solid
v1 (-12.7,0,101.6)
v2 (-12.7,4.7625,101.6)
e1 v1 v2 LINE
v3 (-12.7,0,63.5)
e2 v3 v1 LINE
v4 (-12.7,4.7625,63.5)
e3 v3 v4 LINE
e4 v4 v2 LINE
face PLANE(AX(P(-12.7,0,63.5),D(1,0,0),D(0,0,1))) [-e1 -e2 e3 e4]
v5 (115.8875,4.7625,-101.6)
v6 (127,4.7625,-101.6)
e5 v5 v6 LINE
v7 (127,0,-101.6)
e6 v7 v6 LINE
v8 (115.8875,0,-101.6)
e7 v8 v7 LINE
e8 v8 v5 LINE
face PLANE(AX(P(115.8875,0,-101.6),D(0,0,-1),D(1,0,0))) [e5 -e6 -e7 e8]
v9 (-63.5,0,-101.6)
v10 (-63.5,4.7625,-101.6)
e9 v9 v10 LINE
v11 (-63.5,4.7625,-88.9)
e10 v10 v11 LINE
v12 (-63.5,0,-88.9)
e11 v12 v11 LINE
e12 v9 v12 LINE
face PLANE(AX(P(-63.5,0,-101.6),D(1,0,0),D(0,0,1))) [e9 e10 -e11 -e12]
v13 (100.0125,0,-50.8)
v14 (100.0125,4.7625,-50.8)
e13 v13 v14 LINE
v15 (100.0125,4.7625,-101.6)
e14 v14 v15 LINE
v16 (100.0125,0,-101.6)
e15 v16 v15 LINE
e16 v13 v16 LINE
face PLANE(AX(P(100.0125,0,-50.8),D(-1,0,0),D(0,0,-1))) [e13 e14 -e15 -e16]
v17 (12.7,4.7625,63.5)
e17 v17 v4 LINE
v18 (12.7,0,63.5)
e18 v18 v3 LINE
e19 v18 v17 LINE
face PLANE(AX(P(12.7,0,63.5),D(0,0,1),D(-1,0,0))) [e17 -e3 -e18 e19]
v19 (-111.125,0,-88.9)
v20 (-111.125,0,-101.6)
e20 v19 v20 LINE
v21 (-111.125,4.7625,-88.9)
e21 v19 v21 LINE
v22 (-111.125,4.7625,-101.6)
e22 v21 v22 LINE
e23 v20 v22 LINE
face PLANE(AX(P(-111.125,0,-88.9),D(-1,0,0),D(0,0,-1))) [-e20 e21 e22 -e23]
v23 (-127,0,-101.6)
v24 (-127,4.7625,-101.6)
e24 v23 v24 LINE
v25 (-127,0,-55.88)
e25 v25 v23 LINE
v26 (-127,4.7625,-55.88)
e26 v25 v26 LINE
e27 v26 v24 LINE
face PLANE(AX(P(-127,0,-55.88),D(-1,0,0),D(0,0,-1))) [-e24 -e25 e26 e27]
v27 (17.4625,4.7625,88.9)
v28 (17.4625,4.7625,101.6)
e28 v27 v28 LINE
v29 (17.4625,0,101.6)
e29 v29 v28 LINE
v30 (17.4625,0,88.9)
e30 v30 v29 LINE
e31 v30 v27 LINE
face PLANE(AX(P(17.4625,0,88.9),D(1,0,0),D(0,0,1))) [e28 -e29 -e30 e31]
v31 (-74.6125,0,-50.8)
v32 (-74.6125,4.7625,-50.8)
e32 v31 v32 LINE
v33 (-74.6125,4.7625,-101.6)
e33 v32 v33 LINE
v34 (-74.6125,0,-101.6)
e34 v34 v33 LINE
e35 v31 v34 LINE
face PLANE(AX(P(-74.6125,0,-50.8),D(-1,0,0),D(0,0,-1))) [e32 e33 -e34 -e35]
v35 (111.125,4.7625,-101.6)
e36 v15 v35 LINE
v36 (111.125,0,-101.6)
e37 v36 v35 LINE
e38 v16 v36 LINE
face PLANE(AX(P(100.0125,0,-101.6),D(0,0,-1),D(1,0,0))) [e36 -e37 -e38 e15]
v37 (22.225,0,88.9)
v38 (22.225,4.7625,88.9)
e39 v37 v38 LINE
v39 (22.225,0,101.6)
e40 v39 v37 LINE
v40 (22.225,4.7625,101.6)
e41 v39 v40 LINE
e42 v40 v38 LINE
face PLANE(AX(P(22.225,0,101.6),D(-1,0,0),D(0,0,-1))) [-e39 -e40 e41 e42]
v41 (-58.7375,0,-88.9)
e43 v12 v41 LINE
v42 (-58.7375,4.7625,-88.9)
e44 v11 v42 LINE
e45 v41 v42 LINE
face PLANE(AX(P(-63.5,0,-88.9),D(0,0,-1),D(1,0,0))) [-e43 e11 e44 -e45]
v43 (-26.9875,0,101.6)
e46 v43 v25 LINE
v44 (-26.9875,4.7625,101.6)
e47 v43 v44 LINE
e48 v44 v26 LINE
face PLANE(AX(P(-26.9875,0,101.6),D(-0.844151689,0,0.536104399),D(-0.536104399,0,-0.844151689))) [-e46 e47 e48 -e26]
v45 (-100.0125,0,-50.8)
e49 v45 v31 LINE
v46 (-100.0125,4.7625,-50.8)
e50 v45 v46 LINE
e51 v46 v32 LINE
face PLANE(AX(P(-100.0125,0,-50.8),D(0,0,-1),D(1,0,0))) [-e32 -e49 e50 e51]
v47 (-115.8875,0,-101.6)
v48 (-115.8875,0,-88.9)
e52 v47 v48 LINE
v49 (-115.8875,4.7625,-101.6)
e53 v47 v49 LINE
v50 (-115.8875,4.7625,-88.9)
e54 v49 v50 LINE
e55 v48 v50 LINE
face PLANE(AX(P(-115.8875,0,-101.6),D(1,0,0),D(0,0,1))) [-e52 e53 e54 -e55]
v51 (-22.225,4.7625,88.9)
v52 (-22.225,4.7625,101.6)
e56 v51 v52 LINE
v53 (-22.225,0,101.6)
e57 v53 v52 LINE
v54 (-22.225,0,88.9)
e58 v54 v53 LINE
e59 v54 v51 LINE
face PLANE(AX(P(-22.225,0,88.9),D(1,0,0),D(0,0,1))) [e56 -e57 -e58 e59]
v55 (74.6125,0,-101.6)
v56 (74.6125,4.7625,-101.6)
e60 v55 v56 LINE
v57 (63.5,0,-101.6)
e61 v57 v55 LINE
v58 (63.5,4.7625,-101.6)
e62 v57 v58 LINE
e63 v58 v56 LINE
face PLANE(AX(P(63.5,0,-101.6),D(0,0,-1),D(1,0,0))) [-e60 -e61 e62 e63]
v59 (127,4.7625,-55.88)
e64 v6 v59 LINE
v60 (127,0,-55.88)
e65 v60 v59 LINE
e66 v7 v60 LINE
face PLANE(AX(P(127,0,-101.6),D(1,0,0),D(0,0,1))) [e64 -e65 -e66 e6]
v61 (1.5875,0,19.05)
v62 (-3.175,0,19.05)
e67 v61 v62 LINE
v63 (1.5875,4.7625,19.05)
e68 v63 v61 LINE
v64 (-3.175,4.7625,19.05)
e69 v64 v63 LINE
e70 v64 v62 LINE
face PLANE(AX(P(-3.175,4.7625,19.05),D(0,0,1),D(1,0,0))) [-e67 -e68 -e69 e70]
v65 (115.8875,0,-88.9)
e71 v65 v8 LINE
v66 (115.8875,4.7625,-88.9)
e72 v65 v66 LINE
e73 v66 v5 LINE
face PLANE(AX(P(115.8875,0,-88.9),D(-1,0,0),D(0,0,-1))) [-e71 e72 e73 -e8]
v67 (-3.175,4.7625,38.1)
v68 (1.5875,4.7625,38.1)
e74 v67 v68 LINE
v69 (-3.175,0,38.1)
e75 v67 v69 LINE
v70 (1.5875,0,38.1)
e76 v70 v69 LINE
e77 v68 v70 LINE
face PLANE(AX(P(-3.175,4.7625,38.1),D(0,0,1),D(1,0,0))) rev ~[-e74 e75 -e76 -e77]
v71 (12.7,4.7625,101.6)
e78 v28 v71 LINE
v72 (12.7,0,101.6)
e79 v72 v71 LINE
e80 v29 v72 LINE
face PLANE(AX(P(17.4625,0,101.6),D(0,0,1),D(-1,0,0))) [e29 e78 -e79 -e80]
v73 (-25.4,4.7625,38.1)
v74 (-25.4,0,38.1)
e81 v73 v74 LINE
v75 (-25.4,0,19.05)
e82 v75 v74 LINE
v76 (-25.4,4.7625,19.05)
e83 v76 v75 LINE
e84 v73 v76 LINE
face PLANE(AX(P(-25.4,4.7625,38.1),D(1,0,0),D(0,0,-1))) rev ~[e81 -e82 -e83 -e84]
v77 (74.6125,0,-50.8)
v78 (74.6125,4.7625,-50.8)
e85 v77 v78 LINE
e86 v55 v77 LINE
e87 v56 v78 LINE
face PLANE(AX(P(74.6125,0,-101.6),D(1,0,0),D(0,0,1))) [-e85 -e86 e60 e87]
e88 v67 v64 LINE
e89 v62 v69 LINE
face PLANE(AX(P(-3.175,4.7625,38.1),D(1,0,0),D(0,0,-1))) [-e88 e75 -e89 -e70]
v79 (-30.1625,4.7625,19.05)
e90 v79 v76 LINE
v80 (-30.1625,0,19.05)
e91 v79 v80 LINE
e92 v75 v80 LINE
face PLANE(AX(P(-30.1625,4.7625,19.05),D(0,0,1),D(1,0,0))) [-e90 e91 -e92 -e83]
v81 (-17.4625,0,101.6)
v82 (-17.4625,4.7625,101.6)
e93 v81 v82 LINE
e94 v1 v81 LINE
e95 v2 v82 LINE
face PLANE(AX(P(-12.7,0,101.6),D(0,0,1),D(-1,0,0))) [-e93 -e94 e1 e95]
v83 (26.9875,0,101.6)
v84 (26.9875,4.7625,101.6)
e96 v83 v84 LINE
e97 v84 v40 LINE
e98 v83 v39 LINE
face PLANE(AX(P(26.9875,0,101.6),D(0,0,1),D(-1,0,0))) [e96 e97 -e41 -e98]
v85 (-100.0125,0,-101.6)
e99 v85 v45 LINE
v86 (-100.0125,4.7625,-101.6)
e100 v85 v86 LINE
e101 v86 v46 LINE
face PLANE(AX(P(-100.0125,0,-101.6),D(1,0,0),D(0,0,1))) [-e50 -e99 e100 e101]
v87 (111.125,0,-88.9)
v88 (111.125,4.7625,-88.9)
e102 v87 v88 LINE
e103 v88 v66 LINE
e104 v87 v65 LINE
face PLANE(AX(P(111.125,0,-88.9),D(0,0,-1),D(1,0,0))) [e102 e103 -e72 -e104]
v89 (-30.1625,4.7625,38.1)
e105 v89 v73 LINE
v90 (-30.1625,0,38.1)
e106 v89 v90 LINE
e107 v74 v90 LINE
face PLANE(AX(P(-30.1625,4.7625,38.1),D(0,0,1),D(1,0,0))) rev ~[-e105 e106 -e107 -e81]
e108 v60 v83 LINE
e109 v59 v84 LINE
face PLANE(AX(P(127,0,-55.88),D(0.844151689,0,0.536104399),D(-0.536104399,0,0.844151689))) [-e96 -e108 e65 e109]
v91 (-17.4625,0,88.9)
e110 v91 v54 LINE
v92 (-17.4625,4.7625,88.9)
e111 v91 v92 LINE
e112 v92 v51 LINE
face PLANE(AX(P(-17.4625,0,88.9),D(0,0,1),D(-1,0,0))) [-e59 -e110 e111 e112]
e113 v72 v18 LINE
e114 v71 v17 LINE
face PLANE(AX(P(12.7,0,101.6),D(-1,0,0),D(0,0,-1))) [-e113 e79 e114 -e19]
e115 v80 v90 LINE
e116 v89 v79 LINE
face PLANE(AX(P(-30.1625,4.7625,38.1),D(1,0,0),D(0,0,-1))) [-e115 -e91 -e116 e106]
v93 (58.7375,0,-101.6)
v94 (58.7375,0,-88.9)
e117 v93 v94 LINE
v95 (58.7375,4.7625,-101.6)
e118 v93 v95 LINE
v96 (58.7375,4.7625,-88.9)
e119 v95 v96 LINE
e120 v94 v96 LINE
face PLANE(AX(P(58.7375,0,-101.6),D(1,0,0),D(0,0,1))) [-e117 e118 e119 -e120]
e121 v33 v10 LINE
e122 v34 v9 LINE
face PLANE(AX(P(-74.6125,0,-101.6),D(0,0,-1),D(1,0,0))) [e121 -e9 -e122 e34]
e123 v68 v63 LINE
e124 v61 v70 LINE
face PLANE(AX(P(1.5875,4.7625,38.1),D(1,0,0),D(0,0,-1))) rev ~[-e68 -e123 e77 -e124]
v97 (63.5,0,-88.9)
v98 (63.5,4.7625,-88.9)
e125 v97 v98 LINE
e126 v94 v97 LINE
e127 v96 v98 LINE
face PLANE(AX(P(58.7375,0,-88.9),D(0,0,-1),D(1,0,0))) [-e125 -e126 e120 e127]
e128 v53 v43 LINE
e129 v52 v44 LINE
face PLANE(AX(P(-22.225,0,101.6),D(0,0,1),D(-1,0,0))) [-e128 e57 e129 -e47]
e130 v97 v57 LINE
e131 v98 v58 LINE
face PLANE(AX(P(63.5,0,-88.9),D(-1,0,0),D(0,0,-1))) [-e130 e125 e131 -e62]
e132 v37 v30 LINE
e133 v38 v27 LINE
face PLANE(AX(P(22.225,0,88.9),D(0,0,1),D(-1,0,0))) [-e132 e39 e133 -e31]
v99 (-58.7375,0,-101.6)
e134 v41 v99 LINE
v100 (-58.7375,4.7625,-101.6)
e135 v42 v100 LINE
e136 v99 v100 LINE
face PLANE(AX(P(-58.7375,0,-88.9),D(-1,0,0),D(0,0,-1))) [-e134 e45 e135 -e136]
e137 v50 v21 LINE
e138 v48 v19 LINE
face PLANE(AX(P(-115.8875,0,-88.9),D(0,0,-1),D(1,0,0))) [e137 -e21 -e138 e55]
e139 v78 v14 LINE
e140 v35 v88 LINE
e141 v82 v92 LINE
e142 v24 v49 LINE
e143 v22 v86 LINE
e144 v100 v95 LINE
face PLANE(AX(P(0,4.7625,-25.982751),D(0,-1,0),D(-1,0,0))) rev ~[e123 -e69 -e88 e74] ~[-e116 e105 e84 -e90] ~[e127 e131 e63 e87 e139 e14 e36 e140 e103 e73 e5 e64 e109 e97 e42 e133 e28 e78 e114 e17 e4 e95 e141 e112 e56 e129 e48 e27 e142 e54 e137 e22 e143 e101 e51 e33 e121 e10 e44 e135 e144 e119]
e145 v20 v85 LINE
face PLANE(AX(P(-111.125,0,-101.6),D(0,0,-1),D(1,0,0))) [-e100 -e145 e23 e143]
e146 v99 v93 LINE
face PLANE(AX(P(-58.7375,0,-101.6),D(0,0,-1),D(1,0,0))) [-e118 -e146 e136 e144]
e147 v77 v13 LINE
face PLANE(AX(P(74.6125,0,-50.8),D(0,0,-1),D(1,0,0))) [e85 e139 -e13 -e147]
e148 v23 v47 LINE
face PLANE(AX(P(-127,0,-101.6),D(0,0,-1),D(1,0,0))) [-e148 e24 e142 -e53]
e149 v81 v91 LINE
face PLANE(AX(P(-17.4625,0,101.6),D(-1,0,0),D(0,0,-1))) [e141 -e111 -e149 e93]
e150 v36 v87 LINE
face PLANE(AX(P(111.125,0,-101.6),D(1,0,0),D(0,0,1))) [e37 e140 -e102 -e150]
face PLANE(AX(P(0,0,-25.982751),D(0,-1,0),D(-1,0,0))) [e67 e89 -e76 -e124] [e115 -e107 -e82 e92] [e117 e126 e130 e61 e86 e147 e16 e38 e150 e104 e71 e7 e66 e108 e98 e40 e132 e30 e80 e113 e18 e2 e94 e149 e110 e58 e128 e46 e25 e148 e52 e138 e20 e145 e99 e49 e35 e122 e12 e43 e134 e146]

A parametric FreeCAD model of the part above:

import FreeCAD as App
import Part
import Sketcher
from FreeCAD import Vector
Q = App.Units.Quantity

doc = App.newDocument("Part")
params = doc.addObject("Spreadsheet::Sheet", "Params")
for row, (alias, value) in enumerate([
    ("sketch1_width", "1 in"),
    ("sketch1_height", "2 in"),
    ("sketch1_height2", "1.5 in"),
    ("sketch1_height3", "0.5 in"),
    ("sketch1_height4", "1.8 in"),
    ("pad1_length", "0.1875 in"),
    ("sketch2_height", "0.75 in"),
    ("sketch2_width", "0.1875 in"),
], start=1):
    params.set(f"A{row}", alias)
    params.set(f"B{row}", "=" + value)
    params.setAlias(f"B{row}", alias)

body = doc.addObject("PartDesign::Body", "Body")

sketch1 = body.newObject("Sketcher::SketchObject", "Sketch")
sketch1.AttachmentSupport = (doc.getObject("XZ_Plane"), [""])
sketch1.MapMode = "FlatFace"
sketch1.addGeometry([
    Part.LineSegment(Vector(-12.7, 63.5, 0), Vector(12.7, 63.5, 0)),
    Part.LineSegment(Vector(12.7, 63.5, 0), Vector(12.7, 101.6, 0)),
    Part.LineSegment(Vector(12.7, 101.6, 0), Vector(17.4625, 101.6, 0)),
    Part.LineSegment(Vector(17.4625, 101.6, 0), Vector(17.4625, 88.9, 0)),
    Part.LineSegment(Vector(17.4625, 88.9, 0), Vector(22.225, 88.9, 0)),
    Part.LineSegment(Vector(22.225, 88.9, 0), Vector(22.225, 101.6, 0)),
    Part.LineSegment(Vector(22.225, 101.6, 0), Vector(26.9875, 101.6, 0)),
    Part.LineSegment(Vector(26.9875, 101.6, 0), Vector(127, -55.88, 0)),
    Part.LineSegment(Vector(127, -55.88, 0), Vector(127, -101.6, 0)),
    Part.LineSegment(Vector(127, -101.6, 0), Vector(115.8875, -101.6, 0)),
    Part.LineSegment(Vector(115.8875, -101.6, 0), Vector(115.8875, -88.9, 0)),
    Part.LineSegment(Vector(115.8875, -88.9, 0), Vector(111.125, -88.9, 0)),
    Part.LineSegment(Vector(111.125, -88.9, 0), Vector(111.125, -101.6, 0)),
    Part.LineSegment(Vector(111.125, -101.6, 0), Vector(100.0125, -101.6, 0)),
    Part.LineSegment(Vector(100.0125, -101.6, 0), Vector(100.0125, -50.8, 0)),
    Part.LineSegment(Vector(100.0125, -50.8, 0), Vector(74.6125, -50.8, 0)),
    Part.LineSegment(Vector(74.6125, -50.8, 0), Vector(74.6125, -101.6, 0)),
    Part.LineSegment(Vector(74.6125, -101.6, 0), Vector(63.5, -101.6, 0)),
    Part.LineSegment(Vector(63.5, -101.6, 0), Vector(63.5, -88.9, 0)),
    Part.LineSegment(Vector(63.5, -88.9, 0), Vector(58.7375, -88.9, 0)),
    Part.LineSegment(Vector(58.7375, -88.9, 0), Vector(58.7375, -101.6, 0)),
    Part.LineSegment(Vector(58.7375, -101.6, 0), Vector(-58.7375, -101.6, 0)),
    Part.LineSegment(Vector(-58.7375, -101.6, 0), Vector(-58.7375, -88.9, 0)),
    Part.LineSegment(Vector(-58.7375, -88.9, 0), Vector(-63.5, -88.9, 0)),
    Part.LineSegment(Vector(-63.5, -88.9, 0), Vector(-63.5, -101.6, 0)),
    Part.LineSegment(Vector(-63.5, -101.6, 0), Vector(-74.6125, -101.6, 0)),
    Part.LineSegment(Vector(-74.6125, -101.6, 0), Vector(-74.6125, -50.8, 0)),
    Part.LineSegment(Vector(-74.6125, -50.8, 0), Vector(-100.0125, -50.8, 0)),
    Part.LineSegment(Vector(-100.0125, -50.8, 0), Vector(-100.0125, -101.6, 0)),
    Part.LineSegment(Vector(-100.0125, -101.6, 0), Vector(-111.125, -101.6, 0)),
    Part.LineSegment(Vector(-111.125, -101.6, 0), Vector(-111.125, -88.9, 0)),
    Part.LineSegment(Vector(-111.125, -88.9, 0), Vector(-115.8875, -88.9, 0)),
    Part.LineSegment(Vector(-115.8875, -88.9, 0), Vector(-115.8875, -101.6, 0)),
    Part.LineSegment(Vector(-115.8875, -101.6, 0), Vector(-127, -101.6, 0)),
    Part.LineSegment(Vector(-127, -101.6, 0), Vector(-127, -55.88, 0)),
    Part.LineSegment(Vector(-127, -55.88, 0), Vector(-26.9875, 101.6, 0)),
    Part.LineSegment(Vector(-26.9875, 101.6, 0), Vector(-22.225, 101.6, 0)),
    Part.LineSegment(Vector(-22.225, 101.6, 0), Vector(-22.225, 88.9, 0)),
    Part.LineSegment(Vector(-22.225, 88.9, 0), Vector(-17.4625, 88.9, 0)),
    Part.LineSegment(Vector(-17.4625, 88.9, 0), Vector(-17.4625, 101.6, 0)),
    Part.LineSegment(Vector(-17.4625, 101.6, 0), Vector(-12.7, 101.6, 0)),
    Part.LineSegment(Vector(-12.7, 101.6, 0), Vector(-12.7, 63.5, 0)),
], False)
sketch1.addConstraint([
    Sketcher.Constraint("Coincident", 0, 2, 1, 1),
    Sketcher.Constraint("Coincident", 1, 2, 2, 1),
    Sketcher.Constraint("Coincident", 2, 2, 3, 1),
    Sketcher.Constraint("Coincident", 3, 2, 4, 1),
    Sketcher.Constraint("Coincident", 4, 2, 5, 1),
    Sketcher.Constraint("Coincident", 5, 2, 6, 1),
    Sketcher.Constraint("Coincident", 6, 2, 7, 1),
    Sketcher.Constraint("Coincident", 7, 2, 8, 1),
    Sketcher.Constraint("Coincident", 8, 2, 9, 1),
    Sketcher.Constraint("Coincident", 9, 2, 10, 1),
    Sketcher.Constraint("Coincident", 10, 2, 11, 1),
    Sketcher.Constraint("Coincident", 11, 2, 12, 1),
    Sketcher.Constraint("Coincident", 12, 2, 13, 1),
    Sketcher.Constraint("Coincident", 13, 2, 14, 1),
    Sketcher.Constraint("Coincident", 14, 2, 15, 1),
    Sketcher.Constraint("Coincident", 15, 2, 16, 1),
    Sketcher.Constraint("Coincident", 16, 2, 17, 1),
    Sketcher.Constraint("Coincident", 17, 2, 18, 1),
    Sketcher.Constraint("Coincident", 18, 2, 19, 1),
    Sketcher.Constraint("Coincident", 19, 2, 20, 1),
    Sketcher.Constraint("Coincident", 20, 2, 21, 1),
    Sketcher.Constraint("Coincident", 21, 2, 22, 1),
    Sketcher.Constraint("Coincident", 22, 2, 23, 1),
    Sketcher.Constraint("Coincident", 23, 2, 24, 1),
    Sketcher.Constraint("Coincident", 24, 2, 25, 1),
    Sketcher.Constraint("Coincident", 25, 2, 26, 1),
    Sketcher.Constraint("Coincident", 26, 2, 27, 1),
    Sketcher.Constraint("Coincident", 27, 2, 28, 1),
    Sketcher.Constraint("Coincident", 28, 2, 29, 1),
    Sketcher.Constraint("Coincident", 29, 2, 30, 1),
    Sketcher.Constraint("Coincident", 30, 2, 31, 1),
    Sketcher.Constraint("Coincident", 31, 2, 32, 1),
    Sketcher.Constraint("Coincident", 32, 2, 33, 1),
    Sketcher.Constraint("Coincident", 33, 2, 34, 1),
    Sketcher.Constraint("Coincident", 34, 2, 35, 1),
    Sketcher.Constraint("Coincident", 35, 2, 36, 1),
    Sketcher.Constraint("Coincident", 36, 2, 37, 1),
    Sketcher.Constraint("Coincident", 37, 2, 38, 1),
    Sketcher.Constraint("Coincident", 38, 2, 39, 1),
    Sketcher.Constraint("Coincident", 39, 2, 40, 1),
    Sketcher.Constraint("Coincident", 40, 2, 41, 1),
    Sketcher.Constraint("Coincident", 41, 2, 0, 1),
    Sketcher.Constraint("Horizontal", 0),
    Sketcher.Constraint("Vertical", 1),
    Sketcher.Constraint("Horizontal", 2),
    Sketcher.Constraint("Vertical", 3),
    Sketcher.Constraint("Horizontal", 4),
    Sketcher.Constraint("Vertical", 5),
    Sketcher.Constraint("Horizontal", 6),
    Sketcher.Constraint("Vertical", 8),
    Sketcher.Constraint("Horizontal", 9),
    Sketcher.Constraint("Vertical", 10),
    Sketcher.Constraint("Horizontal", 11),
    Sketcher.Constraint("Vertical", 12),
    Sketcher.Constraint("Horizontal", 13),
    Sketcher.Constraint("Vertical", 14),
    Sketcher.Constraint("Horizontal", 15),
    Sketcher.Constraint("Vertical", 16),
    Sketcher.Constraint("Horizontal", 17),
    Sketcher.Constraint("Vertical", 18),
    Sketcher.Constraint("Horizontal", 19),
    Sketcher.Constraint("Vertical", 20),
    Sketcher.Constraint("Horizontal", 21),
    Sketcher.Constraint("Vertical", 22),
    Sketcher.Constraint("Horizontal", 23),
    Sketcher.Constraint("Vertical", 24),
    Sketcher.Constraint("Horizontal", 25),
    Sketcher.Constraint("Vertical", 26),
    Sketcher.Constraint("Horizontal", 27),
    Sketcher.Constraint("Vertical", 28),
    Sketcher.Constraint("Horizontal", 29),
    Sketcher.Constraint("Vertical", 30),
    Sketcher.Constraint("Horizontal", 31),
    Sketcher.Constraint("Vertical", 32),
    Sketcher.Constraint("Horizontal", 33),
    Sketcher.Constraint("Vertical", 34),
    Sketcher.Constraint("Horizontal", 36),
    Sketcher.Constraint("Vertical", 37),
    Sketcher.Constraint("Horizontal", 38),
    Sketcher.Constraint("Vertical", 39),
    Sketcher.Constraint("Horizontal", 40),
    Sketcher.Constraint("Vertical", 41),
    Sketcher.Constraint("Symmetric", 19, 2, 22, 2, -2),
    Sketcher.Constraint("Symmetric", 17, 2, 24, 2, -2),
    Sketcher.Constraint("Symmetric", 15, 2, 26, 2, -2),
    Sketcher.Constraint("Symmetric", 13, 2, 28, 2, -2),
    Sketcher.Constraint("Symmetric", 11, 2, 30, 2, -2),
    Sketcher.Constraint("Symmetric", 9, 2, 32, 2, -2),
    Sketcher.Constraint("Symmetric", 7, 2, 34, 2, -2),
    Sketcher.Constraint("Symmetric", 6, 2, 35, 2, -2),
    Sketcher.Constraint("Symmetric", 4, 2, 37, 2, -2),
    Sketcher.Constraint("Symmetric", 2, 2, 39, 2, -2),
    Sketcher.Constraint("Horizontal", 2, 2, 5, 2),
    Sketcher.Constraint("Horizontal", 9, 2, 12, 2),
    Sketcher.Constraint("Horizontal", 13, 2, 16, 2),
    Sketcher.Constraint("Horizontal", 11, 2, 18, 2),
    Sketcher.Constraint("Horizontal", 17, 2, 20, 2),
    Sketcher.Constraint("Equal", 2, 4),
    Sketcher.Constraint("Equal", 4, 6),
    Sketcher.Constraint("Equal", 6, 11),
    Sketcher.Constraint("Equal", 9, 13),
    Sketcher.Constraint("Equal", 0, 15),
    Sketcher.Constraint("Equal", 13, 17),
    Sketcher.Constraint("Equal", 11, 19),
    Sketcher.Constraint("Equal", 38, 40),
    Sketcher.Constraint("Equal", 5, 10),
    Sketcher.Constraint("DistanceX", 0, 1, 0, 2, Q("1 in")),
    Sketcher.Constraint("DistanceY", 14, 1, 14, 2, Q("2 in")),
    Sketcher.Constraint("DistanceY", 1, 1, 1, 2, Q("1.5 in")),
    Sketcher.Constraint("DistanceY", 3, 2, 3, 1, Q("0.5 in")),
    Sketcher.Constraint("DistanceY", 8, 2, 8, 1, Q("1.8 in")),
    Sketcher.Constraint("DistanceY", -1, 1, 1, 2, Q("4 in")),
    Sketcher.Constraint("DistanceX", -1, 1, 7, 2, Q("5 in")),
    Sketcher.Constraint("DistanceY", 8, 2, -1, 1, Q("4 in")),
    Sketcher.Constraint("DistanceX", 23, 2, 18, 2, Q("5 in")),
    Sketcher.Constraint("DistanceX", 2, 1, 2, 2, Q("0.1875 in")),
])
sketch1.setExpression("Constraints[106]", "Params.sketch1_width")
sketch1.setExpression("Constraints[107]", "Params.sketch1_height")
sketch1.setExpression("Constraints[108]", "Params.sketch1_height2")
sketch1.setExpression("Constraints[109]", "Params.sketch1_height3")
sketch1.setExpression("Constraints[110]", "Params.sketch1_height4")
pad1 = body.newObject("PartDesign::Pad", "Pad")
pad1.Profile = sketch1
pad1.setExpression("Length", "Params.pad1_length")
pad1.Reversed = True

sketch2 = body.newObject("Sketcher::SketchObject", "Sketch001")
sketch2.AttachmentSupport = (doc.getObject("XZ_Plane"), [""])
sketch2.MapMode = "FlatFace"
sketch2.AttachmentOffset = App.Placement(Vector(0, 0, -0.1875 * 25.4), App.Rotation())
sketch2.addGeometry([
    Part.LineSegment(Vector(-30.1625, 19.05, 0), Vector(-30.1625, 38.1, 0)),
    Part.LineSegment(Vector(-30.1625, 38.1, 0), Vector(-25.4, 38.1, 0)),
    Part.LineSegment(Vector(-25.4, 38.1, 0), Vector(-25.4, 19.05, 0)),
    Part.LineSegment(Vector(-25.4, 19.05, 0), Vector(-30.1625, 19.05, 0)),
    Part.LineSegment(Vector(-3.175, 19.05, 0), Vector(-3.175, 38.1, 0)),
    Part.LineSegment(Vector(-3.175, 38.1, 0), Vector(1.5875, 38.1, 0)),
    Part.LineSegment(Vector(1.5875, 38.1, 0), Vector(1.5875, 19.05, 0)),
    Part.LineSegment(Vector(1.5875, 19.05, 0), Vector(-3.175, 19.05, 0)),
], False)
sketch2.addConstraint([
    Sketcher.Constraint("Coincident", 0, 2, 1, 1),
    Sketcher.Constraint("Coincident", 1, 2, 2, 1),
    Sketcher.Constraint("Coincident", 2, 2, 3, 1),
    Sketcher.Constraint("Coincident", 3, 2, 0, 1),
    Sketcher.Constraint("Coincident", 4, 2, 5, 1),
    Sketcher.Constraint("Coincident", 5, 2, 6, 1),
    Sketcher.Constraint("Coincident", 6, 2, 7, 1),
    Sketcher.Constraint("Coincident", 7, 2, 4, 1),
    Sketcher.Constraint("Vertical", 0),
    Sketcher.Constraint("Horizontal", 1),
    Sketcher.Constraint("Vertical", 2),
    Sketcher.Constraint("Horizontal", 3),
    Sketcher.Constraint("Vertical", 4),
    Sketcher.Constraint("Horizontal", 5),
    Sketcher.Constraint("Vertical", 6),
    Sketcher.Constraint("Horizontal", 7),
    Sketcher.Constraint("Horizontal", 1, 2, 4, 2),
    Sketcher.Constraint("Horizontal", 3, 2, 6, 2),
    Sketcher.Constraint("Equal", 3, 5),
    Sketcher.Constraint("DistanceX", 1, 2, -1, 1, Q("1 in")),
    Sketcher.Constraint("DistanceY", 0, 1, 0, 2, Q("0.75 in")),
    Sketcher.Constraint("DistanceY", -1, 1, 0, 2, Q("1.5 in")),
    Sketcher.Constraint("DistanceX", 1, 1, 1, 2, Q("0.1875 in")),
    Sketcher.Constraint("DistanceX", 0, 2, 5, 2, Q("1.25 in")),
])
sketch2.setExpression("Constraints[20]", "Params.sketch2_height")
sketch2.setExpression("Constraints[22]", "Params.sketch2_width")
pocket1 = body.newObject("PartDesign::Pocket", "Pocket")
pocket1.Profile = sketch2
pocket1.Type = "ThroughAll"
pocket1.Reversed = True

doc.recompute()
